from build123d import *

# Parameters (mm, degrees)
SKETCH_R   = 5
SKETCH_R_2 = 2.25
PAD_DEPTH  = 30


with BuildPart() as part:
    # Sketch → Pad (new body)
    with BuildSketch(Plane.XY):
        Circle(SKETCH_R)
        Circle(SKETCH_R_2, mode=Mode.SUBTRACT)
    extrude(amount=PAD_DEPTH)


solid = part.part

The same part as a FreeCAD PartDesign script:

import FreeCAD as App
import Part
import Sketcher

V = App.Vector

doc = App.newDocument("Part")
params = doc.addObject("Spreadsheet::Sheet", "Params")
for row, (alias, value) in enumerate([
    ("sketch1_diameter", "10 mm"),
    ("sketch1_diameter2", "4.5 mm"),
    ("pad1_length", "30 mm"),
], start=1):
    params.set(f"A{row}", alias)
    params.set(f"B{row}", "=" + value)
    params.setAlias(f"B{row}", alias)

body = doc.addObject("PartDesign::Body", "Body")

# Sketch on XY plane
sketch1 = doc.addObject("Sketcher::SketchObject", "Sketch")
body.addObject(sketch1)
sketch1.AttachmentSupport = (doc.XY_Plane, [""])
sketch1.MapMode = "FlatFace"
sketch1.addGeometry([
    Part.Circle(V(0, 0, 0), V(0, 0, 1), 5),
    Part.Circle(V(0, 0, 0), V(0, 0, 1), 2.25),
], False)
sketch1.addConstraint([
    Sketcher.Constraint("Coincident", 0, 3, -1, 1),
    Sketcher.Constraint("Coincident", 1, 3, -1, 1),
    Sketcher.Constraint("Diameter", 0, 10.0),
    Sketcher.Constraint("Diameter", 1, 4.5),
])
sketch1.setExpression("Constraints[2]", "Params.sketch1_diameter")
sketch1.setExpression("Constraints[3]", "Params.sketch1_diameter2")
pad1 = doc.addObject("PartDesign::Pad", "Pad")
body.addObject(pad1)
pad1.Profile = sketch1
pad1.setExpression("Length", "Params.pad1_length")

doc.recompute()
